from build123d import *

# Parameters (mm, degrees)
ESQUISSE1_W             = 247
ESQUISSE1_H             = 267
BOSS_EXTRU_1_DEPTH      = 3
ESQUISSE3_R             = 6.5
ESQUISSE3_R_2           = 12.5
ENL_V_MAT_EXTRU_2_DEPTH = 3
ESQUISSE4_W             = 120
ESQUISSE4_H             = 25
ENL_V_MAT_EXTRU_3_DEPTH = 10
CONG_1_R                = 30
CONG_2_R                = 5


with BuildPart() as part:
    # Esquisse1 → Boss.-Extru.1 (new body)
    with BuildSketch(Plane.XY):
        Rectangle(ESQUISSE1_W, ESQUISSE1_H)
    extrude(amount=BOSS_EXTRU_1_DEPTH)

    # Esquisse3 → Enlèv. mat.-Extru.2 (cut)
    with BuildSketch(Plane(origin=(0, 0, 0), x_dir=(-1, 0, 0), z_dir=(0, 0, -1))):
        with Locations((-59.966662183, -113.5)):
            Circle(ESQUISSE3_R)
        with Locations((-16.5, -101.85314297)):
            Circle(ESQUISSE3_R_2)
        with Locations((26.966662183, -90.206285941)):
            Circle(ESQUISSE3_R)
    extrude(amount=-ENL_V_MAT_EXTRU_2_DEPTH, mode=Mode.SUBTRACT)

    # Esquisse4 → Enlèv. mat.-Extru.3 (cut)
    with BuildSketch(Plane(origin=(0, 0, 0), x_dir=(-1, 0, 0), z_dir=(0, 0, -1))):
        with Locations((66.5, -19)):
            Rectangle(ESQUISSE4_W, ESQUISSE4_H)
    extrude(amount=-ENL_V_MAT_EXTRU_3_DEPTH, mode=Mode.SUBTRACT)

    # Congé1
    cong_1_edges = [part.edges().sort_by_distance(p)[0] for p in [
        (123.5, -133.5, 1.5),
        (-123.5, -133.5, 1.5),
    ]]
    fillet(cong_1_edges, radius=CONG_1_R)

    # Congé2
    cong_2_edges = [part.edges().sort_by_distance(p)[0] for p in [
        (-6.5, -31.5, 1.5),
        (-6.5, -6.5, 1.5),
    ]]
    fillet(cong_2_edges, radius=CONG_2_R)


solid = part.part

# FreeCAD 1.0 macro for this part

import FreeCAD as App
import Part
import Sketcher

V = App.Vector


def edges_at(feature, points):
    """Names of the edges that pass closest to the given points."""
    edges = feature.Shape.Edges
    near = lambda p: min(range(len(edges)), key=lambda i: edges[i].distToShape(Part.Vertex(*p))[0])
    return sorted({f"Edge{near(p) + 1}" for p in points})


def add_polygon(sketch, points):
    """Adds a closed chain of lines whose ends are joined by coincident constraints."""
    first, n = sketch.GeometryCount, len(points)
    for a, b in zip(points, points[1:] + points[:1]):
        sketch.addGeometry(Part.LineSegment(App.Vector(*a, 0), App.Vector(*b, 0)), False)
    for i in range(n):
        sketch.addConstraint(Sketcher.Constraint("Coincident", first + i, 2, first + (i + 1) % n, 1))

doc = App.newDocument("Part")
body = doc.addObject("PartDesign::Body", "Body")

sketch1 = body.newObject("Sketcher::SketchObject", "Sketch")
sketch1.AttachmentSupport = (doc.getObject("XY_Plane"), [""])
sketch1.MapMode = "FlatFace"
add_polygon(sketch1, [(-124, 134), (-124, -134), (124, -134), (124, 134)])
sketch1.addConstraint(Sketcher.Constraint("Vertical", 0))
sketch1.addConstraint(Sketcher.Constraint("Horizontal", 1))
sketch1.addConstraint(Sketcher.Constraint("Vertical", 2))
sketch1.addConstraint(Sketcher.Constraint("Horizontal", 3))
sketch1.addConstraint(Sketcher.Constraint("Symmetric", 0, 2, 2, 2, -1, 1))
sketch1.addConstraint(Sketcher.Constraint("DistanceX", 1, 1, 1, 2, 247.0))
sketch1.addConstraint(Sketcher.Constraint("DistanceY", 0, 2, 0, 1, 267.0))
pad1 = body.newObject("PartDesign::Pad", "Pad")
pad1.Profile = sketch1
pad1.Length = 3

sketch2 = body.newObject("Sketcher::SketchObject", "Sketch001")
sketch2.AttachmentSupport = (doc.getObject("XY_Plane"), [""])
sketch2.MapMode = "FlatFace"
sketch2.addGeometry(Part.Circle(V(60, -114, 0), V(0, 0, 1), 6), False)
sketch2.addGeometry(Part.Circle(V(16, -102, 0), V(0, 0, 1), 12), False)
sketch2.addGeometry(Part.Circle(V(-27, -90, 0), V(0, 0, 1), 6), False)
sketch2.addConstraint(Sketcher.Constraint("Equal", 0, 2))
sketch2.addConstraint(Sketcher.Constraint("Diameter", 0, 13.0))
sketch2.addConstraint(Sketcher.Constraint("Diameter", 1, 25.0))
sketch2.addConstraint(Sketcher.Constraint("DistanceY", 0, 3, -1, 1, 113.5))
sketch2.addConstraint(Sketcher.Constraint("DistanceX", -1, 1, 1, 3, 16.5))
sketch2.addConstraint(Sketcher.Constraint("DistanceX", -1, 1, 0, 3, 59.966662))
sketch2.addConstraint(Sketcher.Constraint("DistanceY", 1, 3, -1, 1, 101.853143))
sketch2.addConstraint(Sketcher.Constraint("DistanceX", 2, 3, -1, 1, 26.966662))
sketch2.addConstraint(Sketcher.Constraint("DistanceY", 2, 3, -1, 1, 90.206286))
pocket1 = body.newObject("PartDesign::Pocket", "Pocket")
pocket1.Profile = sketch2
pocket1.Length = 3
pocket1.Reversed = True

sketch3 = body.newObject("Sketcher::SketchObject", "Sketch002")
sketch3.AttachmentSupport = (doc.getObject("XY_Plane"), [""])
sketch3.MapMode = "FlatFace"
add_polygon(sketch3, [(-6, -6), (-6, -32), (-126, -32), (-126, -6)])
sketch3.addConstraint(Sketcher.Constraint("Vertical", 0))
sketch3.addConstraint(Sketcher.Constraint("Horizontal", 1))
sketch3.addConstraint(Sketcher.Constraint("Vertical", 2))
sketch3.addConstraint(Sketcher.Constraint("Horizontal", 3))
sketch3.addConstraint(Sketcher.Constraint("DistanceX", 1, 2, 1, 1, 120.0))
sketch3.addConstraint(Sketcher.Constraint("DistanceY", 0, 2, 0, 1, 25.0))
sketch3.addConstraint(Sketcher.Constraint("DistanceX", 0, 2, -1, 1, 6.5))
sketch3.addConstraint(Sketcher.Constraint("DistanceY", 0, 2, -1, 1, 31.5))
pocket2 = body.newObject("PartDesign::Pocket", "Pocket001")
pocket2.Profile = sketch3
pocket2.Length = 10
pocket2.Reversed = True
doc.recompute()

fillet = body.newObject("PartDesign::Fillet", "Fillet")
fillet.Base = (pocket2, edges_at(pocket2, [(123.5, -133.5, 1.5), (-123.5, -133.5, 1.5)]))
fillet.Radius = 30
doc.recompute()

fillet2 = body.newObject("PartDesign::Fillet", "Fillet001")
fillet2.Base = (fillet, edges_at(fillet, [(-6.5, -31.5, 1.5), (-6.5, -6.5, 1.5)]))
fillet2.Radius = 5

doc.recompute()
